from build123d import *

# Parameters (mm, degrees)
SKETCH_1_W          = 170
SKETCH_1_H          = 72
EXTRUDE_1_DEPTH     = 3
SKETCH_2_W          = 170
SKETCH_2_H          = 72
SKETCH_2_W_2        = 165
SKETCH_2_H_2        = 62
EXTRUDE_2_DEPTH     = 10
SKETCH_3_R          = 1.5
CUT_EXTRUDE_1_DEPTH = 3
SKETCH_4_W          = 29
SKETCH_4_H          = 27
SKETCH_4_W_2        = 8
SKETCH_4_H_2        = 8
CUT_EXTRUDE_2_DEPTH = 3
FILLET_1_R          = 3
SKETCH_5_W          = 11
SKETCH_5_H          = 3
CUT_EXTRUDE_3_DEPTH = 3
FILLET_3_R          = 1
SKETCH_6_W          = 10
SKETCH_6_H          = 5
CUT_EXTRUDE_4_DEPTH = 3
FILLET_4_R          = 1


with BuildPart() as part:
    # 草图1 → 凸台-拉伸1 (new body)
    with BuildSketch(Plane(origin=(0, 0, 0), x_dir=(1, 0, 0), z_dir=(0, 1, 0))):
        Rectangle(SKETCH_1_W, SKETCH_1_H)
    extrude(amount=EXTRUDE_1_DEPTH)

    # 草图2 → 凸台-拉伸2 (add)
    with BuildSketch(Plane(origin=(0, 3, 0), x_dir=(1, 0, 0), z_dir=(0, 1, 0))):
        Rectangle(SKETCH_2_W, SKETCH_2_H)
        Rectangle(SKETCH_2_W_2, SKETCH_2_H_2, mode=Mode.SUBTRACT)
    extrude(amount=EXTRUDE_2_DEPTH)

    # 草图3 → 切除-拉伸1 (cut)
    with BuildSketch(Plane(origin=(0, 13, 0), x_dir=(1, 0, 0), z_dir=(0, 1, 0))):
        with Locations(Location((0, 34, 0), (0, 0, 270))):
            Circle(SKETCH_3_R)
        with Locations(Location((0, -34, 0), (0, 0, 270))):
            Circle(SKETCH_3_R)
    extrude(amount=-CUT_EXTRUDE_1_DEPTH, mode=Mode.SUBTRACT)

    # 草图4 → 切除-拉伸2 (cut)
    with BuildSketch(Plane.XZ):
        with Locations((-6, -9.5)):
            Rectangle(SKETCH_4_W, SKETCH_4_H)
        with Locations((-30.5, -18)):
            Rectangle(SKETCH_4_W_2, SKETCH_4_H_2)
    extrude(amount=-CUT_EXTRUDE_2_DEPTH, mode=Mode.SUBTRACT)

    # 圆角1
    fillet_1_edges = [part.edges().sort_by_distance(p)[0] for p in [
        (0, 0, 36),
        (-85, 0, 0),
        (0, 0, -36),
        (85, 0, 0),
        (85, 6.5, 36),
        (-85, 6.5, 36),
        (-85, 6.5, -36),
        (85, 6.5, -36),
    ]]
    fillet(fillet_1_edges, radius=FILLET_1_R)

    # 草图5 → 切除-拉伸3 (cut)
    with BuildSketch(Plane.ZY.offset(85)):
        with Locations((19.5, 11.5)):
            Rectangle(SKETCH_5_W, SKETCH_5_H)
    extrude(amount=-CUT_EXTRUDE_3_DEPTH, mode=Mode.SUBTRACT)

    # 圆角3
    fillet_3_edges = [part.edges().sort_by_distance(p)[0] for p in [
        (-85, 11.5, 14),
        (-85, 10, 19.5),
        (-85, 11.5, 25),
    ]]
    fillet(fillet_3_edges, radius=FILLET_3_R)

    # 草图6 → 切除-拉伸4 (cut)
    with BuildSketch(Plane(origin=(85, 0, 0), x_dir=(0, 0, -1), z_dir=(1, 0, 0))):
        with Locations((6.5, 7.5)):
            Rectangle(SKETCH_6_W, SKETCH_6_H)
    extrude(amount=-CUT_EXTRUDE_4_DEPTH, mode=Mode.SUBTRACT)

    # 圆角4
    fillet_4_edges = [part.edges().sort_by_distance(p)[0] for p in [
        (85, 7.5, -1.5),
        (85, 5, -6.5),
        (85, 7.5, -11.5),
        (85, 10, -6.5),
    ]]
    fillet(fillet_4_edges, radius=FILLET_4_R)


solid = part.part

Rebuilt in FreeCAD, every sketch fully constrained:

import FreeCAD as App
import Part
import Sketcher
from FreeCAD import Vector
Q = App.Units.Quantity


def edges_at(feature, points):
    """Names of the edges that pass closest to the given points."""
    edges = feature.Shape.Edges
    near = lambda p: min(range(len(edges)), key=lambda i: edges[i].distToShape(Part.Vertex(*p))[0])
    return sorted({f"Edge{near(p) + 1}" for p in points})


def add_polygon(sketch, points):
    """Adds a closed chain of lines whose ends are joined by coincident constraints."""
    first, n = sketch.GeometryCount, len(points)
    for a, b in zip(points, points[1:] + points[:1]):
        sketch.addGeometry(Part.LineSegment(App.Vector(*a, 0), App.Vector(*b, 0)), False)
    for i in range(n):
        sketch.addConstraint(Sketcher.Constraint("Coincident", first + i, 2, first + (i + 1) % n, 1))

doc = App.newDocument("Part")
params = doc.addObject("Spreadsheet::Sheet", "Params")
for row, (alias, value) in enumerate([
    ("sketch1_width", "170 mm"),
    ("sketch1_height", "72 mm"),
    ("pad1_length", "3 mm"),
    ("sketch2_width", "170 mm"),
    ("sketch2_width2", "165 mm"),
    ("sketch2_height", "72 mm"),
    ("sketch2_height2", "62 mm"),
    ("pad2_length", "10 mm"),
    ("sketch3_diameter", "3 mm"),
    ("pocket1_length", "3 mm"),
    ("sketch4_width", "29 mm"),
    ("sketch4_width2", "8 mm"),
    ("sketch4_height", "27 mm"),
    ("pocket2_length", "3 mm"),
    ("fillet_radius", "3 mm"),
    ("sketch5_width", "3 mm"),
    ("sketch5_height", "11 mm"),
    ("pocket3_length", "3 mm"),
    ("fillet2_radius", "1 mm"),
    ("sketch6_width", "5 mm"),
    ("sketch6_height", "10 mm"),
    ("pocket4_length", "3 mm"),
    ("fillet3_radius", "1 mm"),
], start=1):
    params.set(f"A{row}", alias)
    params.set(f"B{row}", "=" + value)
    params.setAlias(f"B{row}", alias)

body = doc.addObject("PartDesign::Body", "Body")

# Sketch on XZ plane
sketch1 = body.newObject("Sketcher::SketchObject", "Sketch")
sketch1.AttachmentSupport = (doc.getObject("XZ_Plane"), [""])
sketch1.MapMode = "FlatFace"
add_polygon(sketch1, [(-85, -36), (-85, 36), (85, 36), (85, -36)])  # lines 0-3
sketch1.addConstraint([
    Sketcher.Constraint("Vertical", 0),
    Sketcher.Constraint("Horizontal", 1),
    Sketcher.Constraint("Vertical", 2),
    Sketcher.Constraint("Horizontal", 3),
    Sketcher.Constraint("Symmetric", 0, 2, 2, 2, -1, 1),
    Sketcher.Constraint("DistanceX", 1, 1, 1, 2, Q("170 mm")),
    Sketcher.Constraint("DistanceY", 0, 1, 0, 2, Q("72 mm")),
])
sketch1.setExpression("Constraints[9]", "Params.sketch1_width")
sketch1.setExpression("Constraints[10]", "Params.sketch1_height")
pad1 = body.newObject("PartDesign::Pad", "Pad")
pad1.Profile = sketch1
pad1.setExpression("Length", "Params.pad1_length")
pad1.Reversed = True

# Sketch on XZ plane
sketch2 = body.newObject("Sketcher::SketchObject", "Sketch001")
sketch2.AttachmentSupport = (doc.getObject("XZ_Plane"), [""])
sketch2.MapMode = "FlatFace"
sketch2.AttachmentOffset = App.Placement(Vector(0, 0, -3), App.Rotation())
add_polygon(sketch2, [(-85, -36), (-85, 36), (85, 36), (85, -36)])  # lines 0-3
add_polygon(sketch2, [(82.5, 31), (-82.5, 31), (-82.5, -31), (82.5, -31)])  # lines 4-7
sketch2.addConstraint([
    Sketcher.Constraint("Vertical", 0),
    Sketcher.Constraint("Horizontal", 1),
    Sketcher.Constraint("Vertical", 2),
    Sketcher.Constraint("Horizontal", 3),
    Sketcher.Constraint("Horizontal", 4),
    Sketcher.Constraint("Vertical", 5),
    Sketcher.Constraint("Horizontal", 6),
    Sketcher.Constraint("Vertical", 7),
    Sketcher.Constraint("Symmetric", 0, 2, 2, 2, -1, 1),
    Sketcher.Constraint("Symmetric", 4, 2, 6, 2, -1, 1),
    Sketcher.Constraint("DistanceX", 1, 1, 1, 2, Q("170 mm")),
    Sketcher.Constraint("DistanceX", 4, 2, 4, 1, Q("165 mm")),
    Sketcher.Constraint("DistanceY", 0, 1, 0, 2, Q("72 mm")),
    Sketcher.Constraint("DistanceY", 5, 2, 5, 1, Q("62 mm")),
])
sketch2.setExpression("Constraints[18]", "Params.sketch2_width")
sketch2.setExpression("Constraints[19]", "Params.sketch2_width2")
sketch2.setExpression("Constraints[20]", "Params.sketch2_height")
sketch2.setExpression("Constraints[21]", "Params.sketch2_height2")
pad2 = body.newObject("PartDesign::Pad", "Pad001")
pad2.Profile = sketch2
pad2.setExpression("Length", "Params.pad2_length")
pad2.Reversed = True

# Sketch on XZ plane
sketch3 = body.newObject("Sketcher::SketchObject", "Sketch002")
sketch3.AttachmentSupport = (doc.getObject("XZ_Plane"), [""])
sketch3.MapMode = "FlatFace"
sketch3.AttachmentOffset = App.Placement(Vector(0, 0, -13), App.Rotation())
sketch3.addGeometry([
    Part.Circle(Vector(0, -34, 0), Vector(0, 0, 1), 1.5),
    Part.Circle(Vector(0, 34, 0), Vector(0, 0, 1), 1.5),
], False)
sketch3.addConstraint([
    Sketcher.Constraint("Equal", 0, 1),
    Sketcher.Constraint("Symmetric", 0, 3, 1, 3, -1, 1),
    Sketcher.Constraint("PointOnObject", 0, 3, -2),
    Sketcher.Constraint("Diameter", 0, Q("3 mm")),
    Sketcher.Constraint("DistanceY", 0, 3, -1, 1, Q("34 mm")),
])
sketch3.setExpression("Constraints[3]", "Params.sketch3_diameter")
pocket1 = body.newObject("PartDesign::Pocket", "Pocket")
pocket1.Profile = sketch3
pocket1.setExpression("Length", "Params.pocket1_length")
pocket1.Reversed = True

# Sketch on XZ plane
sketch4 = body.newObject("Sketcher::SketchObject", "Sketch003")
sketch4.AttachmentSupport = (doc.getObject("XZ_Plane"), [""])
sketch4.MapMode = "FlatFace"
add_polygon(sketch4, [(-20.5, 4), (-20.5, -23), (8.5, -23), (8.5, 4)])  # lines 0-3
add_polygon(sketch4, [(-34.5, -14), (-34.5, -22), (-26.5, -22), (-26.5, -14)])  # lines 4-7
sketch4.addConstraint([
    Sketcher.Constraint("Vertical", 0),
    Sketcher.Constraint("Horizontal", 1),
    Sketcher.Constraint("Vertical", 2),
    Sketcher.Constraint("Horizontal", 3),
    Sketcher.Constraint("Vertical", 4),
    Sketcher.Constraint("Horizontal", 5),
    Sketcher.Constraint("Vertical", 6),
    Sketcher.Constraint("Horizontal", 7),
    Sketcher.Constraint("Equal", 7, 4),
    Sketcher.Constraint("DistanceX", 1, 1, 1, 2, Q("29 mm")),
    Sketcher.Constraint("DistanceX", 5, 1, 5, 2, Q("8 mm")),
    Sketcher.Constraint("DistanceY", 0, 2, 0, 1, Q("27 mm")),
    Sketcher.Constraint("DistanceY", 0, 2, -1, 1, Q("23 mm")),
    Sketcher.Constraint("DistanceY", 4, 2, -1, 1, Q("22 mm")),
    Sketcher.Constraint("DistanceX", 4, 2, 0, 2, Q("14 mm")),
    Sketcher.Constraint("DistanceX", 0, 2, -1, 1, Q("20.5 mm")),
])
sketch4.setExpression("Constraints[17]", "Params.sketch4_width")
sketch4.setExpression("Constraints[18]", "Params.sketch4_width2")
sketch4.setExpression("Constraints[19]", "Params.sketch4_height")
pocket2 = body.newObject("PartDesign::Pocket", "Pocket001")
pocket2.Profile = sketch4
pocket2.setExpression("Length", "Params.pocket2_length")
doc.recompute()

fillet = body.newObject("PartDesign::Fillet", "Fillet")
fillet.Base = (pocket2, edges_at(pocket2, [
    (0, 0, 36),
    (-85, 0, 0),
    (0, 0, -36),
    (85, 0, 0),
    (85, 6.5, 36),
    (-85, 6.5, 36),
    (-85, 6.5, -36),
    (85, 6.5, -36),
]))
fillet.setExpression("Radius", "Params.fillet_radius")

# Sketch on YZ plane
sketch5 = body.newObject("Sketcher::SketchObject", "Sketch004")
sketch5.AttachmentSupport = (doc.getObject("YZ_Plane"), [""])
sketch5.MapMode = "FlatFace"
sketch5.AttachmentOffset = App.Placement(Vector(0, 0, -85), App.Rotation())
add_polygon(sketch5, [(13, 14), (10, 14), (10, 25), (13, 25)])  # lines 0-3
sketch5.addConstraint([
    Sketcher.Constraint("Horizontal", 0),
    Sketcher.Constraint("Vertical", 1),
    Sketcher.Constraint("Horizontal", 2),
    Sketcher.Constraint("Vertical", 3),
    Sketcher.Constraint("DistanceX", 0, 2, 0, 1, Q("3 mm")),
    Sketcher.Constraint("DistanceY", 1, 1, 1, 2, Q("11 mm")),
    Sketcher.Constraint("DistanceX", -1, 1, 0, 2, Q("10 mm")),
    Sketcher.Constraint("DistanceY", -1, 1, 0, 2, Q("14 mm")),
])
sketch5.setExpression("Constraints[8]", "Params.sketch5_width")
sketch5.setExpression("Constraints[9]", "Params.sketch5_height")
pocket3 = body.newObject("PartDesign::Pocket", "Pocket002")
pocket3.Profile = sketch5
pocket3.setExpression("Length", "Params.pocket3_length")
pocket3.Reversed = True
doc.recompute()

fillet2 = body.newObject("PartDesign::Fillet", "Fillet001")
fillet2.Base = (pocket3, edges_at(pocket3, [(-85, 11.5, 14), (-85, 10, 19.5), (-85, 11.5, 25)]))
fillet2.setExpression("Radius", "Params.fillet2_radius")

# Sketch on YZ plane
sketch6 = body.newObject("Sketcher::SketchObject", "Sketch005")
sketch6.AttachmentSupport = (doc.getObject("YZ_Plane"), [""])
sketch6.MapMode = "FlatFace"
sketch6.AttachmentOffset = App.Placement(Vector(0, 0, 85), App.Rotation())
add_polygon(sketch6, [(10, -1.5), (5, -1.5), (5, -11.5), (10, -11.5)])  # lines 0-3
sketch6.addConstraint([
    Sketcher.Constraint("Horizontal", 0),
    Sketcher.Constraint("Vertical", 1),
    Sketcher.Constraint("Horizontal", 2),
    Sketcher.Constraint("Vertical", 3),
    Sketcher.Constraint("DistanceX", 0, 2, 0, 1, Q("5 mm")),
    Sketcher.Constraint("DistanceY", 1, 2, 1, 1, Q("10 mm")),
    Sketcher.Constraint("DistanceX", -1, 1, 0, 2, Q("5 mm")),
    Sketcher.Constraint("DistanceY", 0, 2, -1, 1, Q("1.5 mm")),
])
sketch6.setExpression("Constraints[8]", "Params.sketch6_width")
sketch6.setExpression("Constraints[9]", "Params.sketch6_height")
pocket4 = body.newObject("PartDesign::Pocket", "Pocket003")
pocket4.Profile = sketch6
pocket4.setExpression("Length", "Params.pocket4_length")
doc.recompute()

fillet3 = body.newObject("PartDesign::Fillet", "Fillet002")
fillet3.Base = (pocket4, edges_at(pocket4, [
    (85, 7.5, -1.5),
    (85, 5, -6.5),
    (85, 7.5, -11.5),
    (85, 10, -6.5),
]))
fillet3.setExpression("Radius", "Params.fillet3_radius")

doc.recompute()
